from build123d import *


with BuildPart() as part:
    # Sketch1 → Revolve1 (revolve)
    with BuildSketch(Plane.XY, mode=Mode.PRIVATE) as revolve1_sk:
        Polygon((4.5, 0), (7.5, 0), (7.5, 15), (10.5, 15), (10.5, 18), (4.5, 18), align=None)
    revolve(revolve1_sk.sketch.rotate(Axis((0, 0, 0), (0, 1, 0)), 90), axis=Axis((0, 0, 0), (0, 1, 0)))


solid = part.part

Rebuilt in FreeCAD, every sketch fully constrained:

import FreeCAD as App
import Part
import Sketcher
Q = App.Units.Quantity

doc = App.newDocument("Part")
params = doc.addObject("Spreadsheet::Sheet", "Params")
for row, (alias, value) in enumerate([
    ("sketch1_width", "3 mm"),
    ("sketch1_height", "15 mm"),
    ("revolution_angle", "360 deg"),
], start=1):
    params.set(f"A{row}", alias)
    params.set(f"B{row}", "=" + value)
    params.setAlias(f"B{row}", alias)

body = doc.addObject("PartDesign::Body", "Body")

# Sketch on XY plane
sketch1 = doc.addObject("Sketcher::SketchObject", "Sketch")
body.addObject(sketch1)
sketch1.AttachmentSupport = (doc.XY_Plane, [""])
sketch1.MapMode = "FlatFace"
sketch1.addGeometry(Part.LineSegment(App.Vector(4.5, 0, 0), App.Vector(7.5, 0, 0)), False)
sketch1.addGeometry(Part.LineSegment(App.Vector(7.5, 0, 0), App.Vector(7.5, 15, 0)), False)
sketch1.addGeometry(Part.LineSegment(App.Vector(7.5, 15, 0), App.Vector(10.5, 15, 0)), False)
sketch1.addGeometry(Part.LineSegment(App.Vector(10.5, 15, 0), App.Vector(10.5, 18, 0)), False)
sketch1.addGeometry(Part.LineSegment(App.Vector(10.5, 18, 0), App.Vector(4.5, 18, 0)), False)
sketch1.addGeometry(Part.LineSegment(App.Vector(4.5, 18, 0), App.Vector(4.5, 0, 0)), False)
sketch1.addConstraint(Sketcher.Constraint("Coincident", 0, 2, 1, 1))
sketch1.addConstraint(Sketcher.Constraint("Coincident", 1, 2, 2, 1))
sketch1.addConstraint(Sketcher.Constraint("Coincident", 2, 2, 3, 1))
sketch1.addConstraint(Sketcher.Constraint("Coincident", 3, 2, 4, 1))
sketch1.addConstraint(Sketcher.Constraint("Coincident", 4, 2, 5, 1))
sketch1.addConstraint(Sketcher.Constraint("Coincident", 5, 2, 0, 1))
sketch1.addConstraint(Sketcher.Constraint("Horizontal", 0))
sketch1.addConstraint(Sketcher.Constraint("Vertical", 1))
sketch1.addConstraint(Sketcher.Constraint("Horizontal", 2))
sketch1.addConstraint(Sketcher.Constraint("Vertical", 3))
sketch1.addConstraint(Sketcher.Constraint("Horizontal", 4))
sketch1.addConstraint(Sketcher.Constraint("Vertical", 5))
sketch1.addConstraint(Sketcher.Constraint("PointOnObject", 0, 2, -1))
sketch1.addConstraint(Sketcher.Constraint("Equal", 0, 2))
sketch1.addConstraint(Sketcher.Constraint("Equal", 2, 3))
sketch1.addConstraint(Sketcher.Constraint("DistanceX", 0, 1, 0, 2, Q("3 mm")))
sketch1.addConstraint(Sketcher.Constraint("DistanceY", 1, 1, 1, 2, Q("15 mm")))
sketch1.addConstraint(Sketcher.Constraint("DistanceX", -1, 1, 0, 2, Q("7.5 mm")))
sketch1.setExpression("Constraints[15]", "Params.sketch1_width")
sketch1.setExpression("Constraints[16]", "Params.sketch1_height")
revolution = doc.addObject("PartDesign::Revolution", "Revolution")
body.addObject(revolution)
revolution.Profile = sketch1
revolution.ReferenceAxis = (sketch1, ["V_Axis"])
revolution.setExpression("Angle", "Params.revolution_angle")

doc.recompute()
